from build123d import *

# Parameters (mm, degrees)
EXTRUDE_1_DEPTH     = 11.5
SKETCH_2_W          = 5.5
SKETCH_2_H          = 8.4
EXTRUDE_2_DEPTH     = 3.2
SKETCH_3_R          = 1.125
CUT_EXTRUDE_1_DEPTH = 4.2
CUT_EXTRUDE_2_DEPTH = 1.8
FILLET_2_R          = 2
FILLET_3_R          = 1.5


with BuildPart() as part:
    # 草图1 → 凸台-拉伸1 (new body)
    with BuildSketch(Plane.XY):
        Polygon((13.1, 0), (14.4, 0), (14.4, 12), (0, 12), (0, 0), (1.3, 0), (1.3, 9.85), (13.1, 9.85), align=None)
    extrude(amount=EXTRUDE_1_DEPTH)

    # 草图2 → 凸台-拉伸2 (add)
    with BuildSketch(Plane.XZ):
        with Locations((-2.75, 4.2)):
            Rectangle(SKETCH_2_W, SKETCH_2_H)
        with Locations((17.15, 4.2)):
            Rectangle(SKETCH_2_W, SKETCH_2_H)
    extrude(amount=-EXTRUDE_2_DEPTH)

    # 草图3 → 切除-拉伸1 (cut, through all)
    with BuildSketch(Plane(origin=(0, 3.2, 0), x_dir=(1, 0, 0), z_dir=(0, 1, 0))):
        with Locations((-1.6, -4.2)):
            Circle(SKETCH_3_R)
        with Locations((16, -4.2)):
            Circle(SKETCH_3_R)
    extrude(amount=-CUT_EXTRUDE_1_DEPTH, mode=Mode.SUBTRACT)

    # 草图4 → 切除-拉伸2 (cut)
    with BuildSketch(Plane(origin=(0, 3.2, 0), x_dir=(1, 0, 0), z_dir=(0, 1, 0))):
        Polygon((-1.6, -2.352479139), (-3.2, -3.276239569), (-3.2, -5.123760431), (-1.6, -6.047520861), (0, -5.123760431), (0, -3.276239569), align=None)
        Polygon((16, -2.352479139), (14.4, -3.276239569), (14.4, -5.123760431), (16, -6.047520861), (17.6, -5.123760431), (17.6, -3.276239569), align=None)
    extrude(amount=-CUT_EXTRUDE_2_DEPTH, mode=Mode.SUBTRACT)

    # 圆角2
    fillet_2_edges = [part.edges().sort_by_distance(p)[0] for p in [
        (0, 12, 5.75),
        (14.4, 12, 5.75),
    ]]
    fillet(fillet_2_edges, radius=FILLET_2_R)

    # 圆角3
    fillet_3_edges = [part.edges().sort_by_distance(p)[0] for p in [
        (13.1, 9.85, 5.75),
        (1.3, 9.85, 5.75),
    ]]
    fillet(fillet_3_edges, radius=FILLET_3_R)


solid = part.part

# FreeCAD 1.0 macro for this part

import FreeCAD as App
import Part
import Sketcher
from FreeCAD import Vector
Q = App.Units.Quantity


def edges_at(feature, points):
    """Names of the edges that pass closest to the given points."""
    edges = feature.Shape.Edges
    near = lambda p: min(range(len(edges)), key=lambda i: edges[i].distToShape(Part.Vertex(*p))[0])
    return sorted({f"Edge{near(p) + 1}" for p in points})


def add_polygon(sketch, points):
    """Adds a closed chain of lines whose ends are joined by coincident constraints."""
    first, n = sketch.GeometryCount, len(points)
    for a, b in zip(points, points[1:] + points[:1]):
        sketch.addGeometry(Part.LineSegment(App.Vector(*a, 0), App.Vector(*b, 0)), False)
    for i in range(n):
        sketch.addConstraint(Sketcher.Constraint("Coincident", first + i, 2, first + (i + 1) % n, 1))

doc = App.newDocument("Part")
body = doc.addObject("PartDesign::Body", "Body")

# Sketch on XY plane
sketch1 = body.newObject("Sketcher::SketchObject", "Sketch")
sketch1.AttachmentSupport = (doc.getObject("XY_Plane"), [""])
sketch1.MapMode = "FlatFace"
add_polygon(sketch1, [(13.1, 0), (14.4, 0), (14.4, 12), (0, 12), (0, 0), (1.3, 0), (1.3, 9.8), (13.1, 9.8)])  # lines 0-7
sketch1.addConstraint([
    Sketcher.Constraint("Horizontal", 0),
    Sketcher.Constraint("Vertical", 1),
    Sketcher.Constraint("Horizontal", 2),
    Sketcher.Constraint("Vertical", 3),
    Sketcher.Constraint("Horizontal", 4),
    Sketcher.Constraint("Vertical", 5),
    Sketcher.Constraint("Horizontal", 6),
    Sketcher.Constraint("Vertical", 7),
    Sketcher.Constraint("Coincident", 3, 2, -1, 1),
    Sketcher.Constraint("PointOnObject", 0, 2, -1),
    Sketcher.Constraint("Equal", 0, 4),
    Sketcher.Constraint("DistanceY", 1, 1, 1, 2, 12.0),
    Sketcher.Constraint("DistanceX", 0, 1, 0, 2, 1.3),
    Sketcher.Constraint("DistanceX", 2, 2, 2, 1, 14.4),
    Sketcher.Constraint("DistanceY", 5, 1, 5, 2, 9.85),
])
pad1 = body.newObject("PartDesign::Pad", "Pad")
pad1.Profile = sketch1
pad1.Length = 11.5

# Sketch on XZ plane
sketch2 = body.newObject("Sketcher::SketchObject", "Sketch001")
sketch2.AttachmentSupport = (doc.getObject("XZ_Plane"), [""])
sketch2.MapMode = "FlatFace"
add_polygon(sketch2, [(-6, 8), (-6, 0), (0, 0), (0, 8)])  # lines 0-3
add_polygon(sketch2, [(14, 8), (14, 0), (20, 0), (20, 8)])  # lines 4-7
sketch2.addConstraint([
    Sketcher.Constraint("Vertical", 0),
    Sketcher.Constraint("Horizontal", 1),
    Sketcher.Constraint("Vertical", 2),
    Sketcher.Constraint("Horizontal", 3),
    Sketcher.Constraint("Vertical", 4),
    Sketcher.Constraint("Horizontal", 5),
    Sketcher.Constraint("Vertical", 6),
    Sketcher.Constraint("Horizontal", 7),
    Sketcher.Constraint("Coincident", 1, 2, -1, 1),
    Sketcher.Constraint("PointOnObject", 4, 2, -1),
    Sketcher.Constraint("Horizontal", 3, 2, 6, 2),
    Sketcher.Constraint("Equal", 3, 5),
    Sketcher.Constraint("DistanceX", 1, 1, 1, 2, 5.5),
    Sketcher.Constraint("DistanceY", 0, 2, 0, 1, 8.4),
    Sketcher.Constraint("DistanceX", -1, 1, 4, 2, 14.4),
])
pad2 = body.newObject("PartDesign::Pad", "Pad001")
pad2.Profile = sketch2
pad2.Length = 3.2
pad2.Reversed = True

# Sketch on XZ plane
sketch3 = body.newObject("Sketcher::SketchObject", "Sketch002")
sketch3.AttachmentSupport = (doc.getObject("XZ_Plane"), [""])
sketch3.MapMode = "FlatFace"
sketch3.AttachmentOffset = App.Placement(Vector(0, 0, -3.2), App.Rotation())
sketch3.addGeometry([
    Part.Circle(Vector(-1.6, 4.2, 0), Vector(0, 0, 1), 1.1),
    Part.Circle(Vector(16, 4.2, 0), Vector(0, 0, 1), 1.1),
], False)
sketch3.addConstraint([
    Sketcher.Constraint("Equal", 0, 1),
    Sketcher.Constraint("Horizontal", 0, 3, 1, 3),
    Sketcher.Constraint("Diameter", 0, 2.25),
    Sketcher.Constraint("DistanceX", -1, 1, 1, 3, 16.0),
    Sketcher.Constraint("DistanceX", 0, 3, -1, 1, 1.6),
    Sketcher.Constraint("DistanceY", -1, 1, 0, 3, 4.2),
])
pocket1 = body.newObject("PartDesign::Pocket", "Pocket")
pocket1.Profile = sketch3
pocket1.Type = "ThroughAll"
pocket1.Reversed = True

# Sketch on XZ plane
sketch4 = body.newObject("Sketcher::SketchObject", "Sketch003")
sketch4.AttachmentSupport = (doc.getObject("XZ_Plane"), [""])
sketch4.MapMode = "FlatFace"
sketch4.AttachmentOffset = App.Placement(Vector(0, 0, -3.2), App.Rotation())
add_polygon(sketch4, [(-1.6, 2.4), (-3.2, 3.3), (-3.2, 5.1), (-1.6, 6), (0, 5.1), (0, 3.3)])  # lines 0-5
add_polygon(sketch4, [(16, 2.4), (14.4, 3.3), (14.4, 5.1), (16, 6), (17.6, 5.1), (17.6, 3.3)])  # lines 6-11
sketch4.addConstraint([
    Sketcher.Constraint("Vertical", 1),
    Sketcher.Constraint("Vertical", 4),
    Sketcher.Constraint("Vertical", 7),
    Sketcher.Constraint("Vertical", 10),
    Sketcher.Constraint("PointOnObject", 3, 2, -2),
    Sketcher.Constraint("Parallel", 0, 3),
    Sketcher.Constraint("Parallel", 2, 5),
    Sketcher.Constraint("Parallel", 3, 6),
    Sketcher.Constraint("Parallel", 5, 8),
    Sketcher.Constraint("Parallel", 6, 9),
    Sketcher.Constraint("Parallel", 8, 11),
    Sketcher.Constraint("Horizontal", 1, 2, 3, 2),
    Sketcher.Constraint("Horizontal", 0, 2, 4, 2),
    Sketcher.Constraint("Horizontal", 4, 2, 6, 2),
    Sketcher.Constraint("Horizontal", 3, 2, 7, 2),
    Sketcher.Constraint("Horizontal", 2, 2, 8, 2),
    Sketcher.Constraint("Horizontal", 7, 2, 9, 2),
    Sketcher.Constraint("Horizontal", 6, 2, 10, 2),
    Sketcher.Constraint("Vertical", 2, 2, 5, 2),
    Sketcher.Constraint("Angle", 0, Q("150 deg")),
    Sketcher.Constraint("DistanceX", -1, 1, 8, 2, 16.0),
    Sketcher.Constraint("DistanceX", 0, 2, -1, 1, 3.2),
    Sketcher.Constraint("DistanceY", 1, 1, 1, 2, 1.847521),
    Sketcher.Constraint("DistanceY", -1, 1, 0, 2, 3.27624),
])
pocket2 = body.newObject("PartDesign::Pocket", "Pocket001")
pocket2.Profile = sketch4
pocket2.Length = 1.8
pocket2.Reversed = True
doc.recompute()

fillet = body.newObject("PartDesign::Fillet", "Fillet")
fillet.Base = (pocket2, edges_at(pocket2, [(0, 12, 5.75), (14.4, 12, 5.75)]))
fillet.Radius = 2
doc.recompute()

fillet2 = body.newObject("PartDesign::Fillet", "Fillet001")
fillet2.Base = (fillet, edges_at(fillet, [(13.1, 9.85, 5.75), (1.3, 9.85, 5.75)]))
fillet2.Radius = 1.5

doc.recompute()
